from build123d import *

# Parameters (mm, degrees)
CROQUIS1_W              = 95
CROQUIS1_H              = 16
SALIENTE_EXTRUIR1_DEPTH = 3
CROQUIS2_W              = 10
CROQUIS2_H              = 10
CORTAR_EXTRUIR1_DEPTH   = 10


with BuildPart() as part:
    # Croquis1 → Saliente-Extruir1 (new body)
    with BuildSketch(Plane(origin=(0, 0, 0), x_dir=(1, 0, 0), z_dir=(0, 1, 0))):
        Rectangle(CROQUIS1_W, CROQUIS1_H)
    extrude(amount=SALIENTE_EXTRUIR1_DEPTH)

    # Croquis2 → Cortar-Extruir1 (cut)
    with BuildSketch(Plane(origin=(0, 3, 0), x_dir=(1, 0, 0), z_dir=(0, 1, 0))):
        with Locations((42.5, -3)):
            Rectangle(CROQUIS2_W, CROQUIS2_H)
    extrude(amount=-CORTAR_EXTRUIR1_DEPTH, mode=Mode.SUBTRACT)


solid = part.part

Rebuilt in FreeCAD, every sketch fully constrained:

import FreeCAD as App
import Part
import Sketcher
Q = App.Units.Quantity

doc = App.newDocument("Part")
body = doc.addObject("PartDesign::Body", "Body")

sketch1 = body.newObject("Sketcher::SketchObject", "Sketch")
sketch1.AttachmentSupport = (doc.getObject("XZ_Plane"), [""])
sketch1.MapMode = "FlatFace"
sketch1.addGeometry([
    Part.LineSegment(App.Vector(-48, -8, 0), App.Vector(-48, 8, 0)),
    Part.LineSegment(App.Vector(-48, 8, 0), App.Vector(48, 8, 0)),
    Part.LineSegment(App.Vector(48, 8, 0), App.Vector(48, -8, 0)),
    Part.LineSegment(App.Vector(48, -8, 0), App.Vector(-48, -8, 0)),
], False)
sketch1.addConstraint([
    Sketcher.Constraint("Coincident", 0, 2, 1, 1),
    Sketcher.Constraint("Coincident", 1, 2, 2, 1),
    Sketcher.Constraint("Coincident", 2, 2, 3, 1),
    Sketcher.Constraint("Coincident", 3, 2, 0, 1),
    Sketcher.Constraint("Vertical", 0),
    Sketcher.Constraint("Horizontal", 1),
    Sketcher.Constraint("Vertical", 2),
    Sketcher.Constraint("Horizontal", 3),
    Sketcher.Constraint("Symmetric", 0, 2, 2, 2, -1, 1),
    Sketcher.Constraint("DistanceX", 1, 1, 1, 2, Q("95 mm")),
    Sketcher.Constraint("DistanceY", 0, 1, 0, 2, Q("16 mm")),
])
pad1 = body.newObject("PartDesign::Pad", "Pad")
pad1.Profile = sketch1
pad1.Length = 3
pad1.Reversed = True

sketch2 = body.newObject("Sketcher::SketchObject", "Sketch001")
sketch2.AttachmentSupport = (doc.getObject("XZ_Plane"), [""])
sketch2.MapMode = "FlatFace"
sketch2.AttachmentOffset = App.Placement(App.Vector(0, 0, -3), App.Rotation())
sketch2.addGeometry([
    Part.LineSegment(App.Vector(38, -2, 0), App.Vector(38, 8, 0)),
    Part.LineSegment(App.Vector(38, 8, 0), App.Vector(48, 8, 0)),
    Part.LineSegment(App.Vector(48, 8, 0), App.Vector(48, -2, 0)),
    Part.LineSegment(App.Vector(48, -2, 0), App.Vector(38, -2, 0)),
], False)
sketch2.addConstraint([
    Sketcher.Constraint("Coincident", 0, 2, 1, 1),
    Sketcher.Constraint("Coincident", 1, 2, 2, 1),
    Sketcher.Constraint("Coincident", 2, 2, 3, 1),
    Sketcher.Constraint("Coincident", 3, 2, 0, 1),
    Sketcher.Constraint("Vertical", 0),
    Sketcher.Constraint("Horizontal", 1),
    Sketcher.Constraint("Vertical", 2),
    Sketcher.Constraint("Horizontal", 3),
    Sketcher.Constraint("Equal", 3, 0),
    Sketcher.Constraint("DistanceX", 1, 1, 1, 2, Q("10 mm")),
    Sketcher.Constraint("DistanceY", -1, 1, 0, 2, Q("8 mm")),
    Sketcher.Constraint("DistanceX", -1, 1, 0, 2, Q("37.5 mm")),
])
pocket1 = body.newObject("PartDesign::Pocket", "Pocket")
pocket1.Profile = sketch2
pocket1.Length = 10
pocket1.Reversed = True

doc.recompute()
